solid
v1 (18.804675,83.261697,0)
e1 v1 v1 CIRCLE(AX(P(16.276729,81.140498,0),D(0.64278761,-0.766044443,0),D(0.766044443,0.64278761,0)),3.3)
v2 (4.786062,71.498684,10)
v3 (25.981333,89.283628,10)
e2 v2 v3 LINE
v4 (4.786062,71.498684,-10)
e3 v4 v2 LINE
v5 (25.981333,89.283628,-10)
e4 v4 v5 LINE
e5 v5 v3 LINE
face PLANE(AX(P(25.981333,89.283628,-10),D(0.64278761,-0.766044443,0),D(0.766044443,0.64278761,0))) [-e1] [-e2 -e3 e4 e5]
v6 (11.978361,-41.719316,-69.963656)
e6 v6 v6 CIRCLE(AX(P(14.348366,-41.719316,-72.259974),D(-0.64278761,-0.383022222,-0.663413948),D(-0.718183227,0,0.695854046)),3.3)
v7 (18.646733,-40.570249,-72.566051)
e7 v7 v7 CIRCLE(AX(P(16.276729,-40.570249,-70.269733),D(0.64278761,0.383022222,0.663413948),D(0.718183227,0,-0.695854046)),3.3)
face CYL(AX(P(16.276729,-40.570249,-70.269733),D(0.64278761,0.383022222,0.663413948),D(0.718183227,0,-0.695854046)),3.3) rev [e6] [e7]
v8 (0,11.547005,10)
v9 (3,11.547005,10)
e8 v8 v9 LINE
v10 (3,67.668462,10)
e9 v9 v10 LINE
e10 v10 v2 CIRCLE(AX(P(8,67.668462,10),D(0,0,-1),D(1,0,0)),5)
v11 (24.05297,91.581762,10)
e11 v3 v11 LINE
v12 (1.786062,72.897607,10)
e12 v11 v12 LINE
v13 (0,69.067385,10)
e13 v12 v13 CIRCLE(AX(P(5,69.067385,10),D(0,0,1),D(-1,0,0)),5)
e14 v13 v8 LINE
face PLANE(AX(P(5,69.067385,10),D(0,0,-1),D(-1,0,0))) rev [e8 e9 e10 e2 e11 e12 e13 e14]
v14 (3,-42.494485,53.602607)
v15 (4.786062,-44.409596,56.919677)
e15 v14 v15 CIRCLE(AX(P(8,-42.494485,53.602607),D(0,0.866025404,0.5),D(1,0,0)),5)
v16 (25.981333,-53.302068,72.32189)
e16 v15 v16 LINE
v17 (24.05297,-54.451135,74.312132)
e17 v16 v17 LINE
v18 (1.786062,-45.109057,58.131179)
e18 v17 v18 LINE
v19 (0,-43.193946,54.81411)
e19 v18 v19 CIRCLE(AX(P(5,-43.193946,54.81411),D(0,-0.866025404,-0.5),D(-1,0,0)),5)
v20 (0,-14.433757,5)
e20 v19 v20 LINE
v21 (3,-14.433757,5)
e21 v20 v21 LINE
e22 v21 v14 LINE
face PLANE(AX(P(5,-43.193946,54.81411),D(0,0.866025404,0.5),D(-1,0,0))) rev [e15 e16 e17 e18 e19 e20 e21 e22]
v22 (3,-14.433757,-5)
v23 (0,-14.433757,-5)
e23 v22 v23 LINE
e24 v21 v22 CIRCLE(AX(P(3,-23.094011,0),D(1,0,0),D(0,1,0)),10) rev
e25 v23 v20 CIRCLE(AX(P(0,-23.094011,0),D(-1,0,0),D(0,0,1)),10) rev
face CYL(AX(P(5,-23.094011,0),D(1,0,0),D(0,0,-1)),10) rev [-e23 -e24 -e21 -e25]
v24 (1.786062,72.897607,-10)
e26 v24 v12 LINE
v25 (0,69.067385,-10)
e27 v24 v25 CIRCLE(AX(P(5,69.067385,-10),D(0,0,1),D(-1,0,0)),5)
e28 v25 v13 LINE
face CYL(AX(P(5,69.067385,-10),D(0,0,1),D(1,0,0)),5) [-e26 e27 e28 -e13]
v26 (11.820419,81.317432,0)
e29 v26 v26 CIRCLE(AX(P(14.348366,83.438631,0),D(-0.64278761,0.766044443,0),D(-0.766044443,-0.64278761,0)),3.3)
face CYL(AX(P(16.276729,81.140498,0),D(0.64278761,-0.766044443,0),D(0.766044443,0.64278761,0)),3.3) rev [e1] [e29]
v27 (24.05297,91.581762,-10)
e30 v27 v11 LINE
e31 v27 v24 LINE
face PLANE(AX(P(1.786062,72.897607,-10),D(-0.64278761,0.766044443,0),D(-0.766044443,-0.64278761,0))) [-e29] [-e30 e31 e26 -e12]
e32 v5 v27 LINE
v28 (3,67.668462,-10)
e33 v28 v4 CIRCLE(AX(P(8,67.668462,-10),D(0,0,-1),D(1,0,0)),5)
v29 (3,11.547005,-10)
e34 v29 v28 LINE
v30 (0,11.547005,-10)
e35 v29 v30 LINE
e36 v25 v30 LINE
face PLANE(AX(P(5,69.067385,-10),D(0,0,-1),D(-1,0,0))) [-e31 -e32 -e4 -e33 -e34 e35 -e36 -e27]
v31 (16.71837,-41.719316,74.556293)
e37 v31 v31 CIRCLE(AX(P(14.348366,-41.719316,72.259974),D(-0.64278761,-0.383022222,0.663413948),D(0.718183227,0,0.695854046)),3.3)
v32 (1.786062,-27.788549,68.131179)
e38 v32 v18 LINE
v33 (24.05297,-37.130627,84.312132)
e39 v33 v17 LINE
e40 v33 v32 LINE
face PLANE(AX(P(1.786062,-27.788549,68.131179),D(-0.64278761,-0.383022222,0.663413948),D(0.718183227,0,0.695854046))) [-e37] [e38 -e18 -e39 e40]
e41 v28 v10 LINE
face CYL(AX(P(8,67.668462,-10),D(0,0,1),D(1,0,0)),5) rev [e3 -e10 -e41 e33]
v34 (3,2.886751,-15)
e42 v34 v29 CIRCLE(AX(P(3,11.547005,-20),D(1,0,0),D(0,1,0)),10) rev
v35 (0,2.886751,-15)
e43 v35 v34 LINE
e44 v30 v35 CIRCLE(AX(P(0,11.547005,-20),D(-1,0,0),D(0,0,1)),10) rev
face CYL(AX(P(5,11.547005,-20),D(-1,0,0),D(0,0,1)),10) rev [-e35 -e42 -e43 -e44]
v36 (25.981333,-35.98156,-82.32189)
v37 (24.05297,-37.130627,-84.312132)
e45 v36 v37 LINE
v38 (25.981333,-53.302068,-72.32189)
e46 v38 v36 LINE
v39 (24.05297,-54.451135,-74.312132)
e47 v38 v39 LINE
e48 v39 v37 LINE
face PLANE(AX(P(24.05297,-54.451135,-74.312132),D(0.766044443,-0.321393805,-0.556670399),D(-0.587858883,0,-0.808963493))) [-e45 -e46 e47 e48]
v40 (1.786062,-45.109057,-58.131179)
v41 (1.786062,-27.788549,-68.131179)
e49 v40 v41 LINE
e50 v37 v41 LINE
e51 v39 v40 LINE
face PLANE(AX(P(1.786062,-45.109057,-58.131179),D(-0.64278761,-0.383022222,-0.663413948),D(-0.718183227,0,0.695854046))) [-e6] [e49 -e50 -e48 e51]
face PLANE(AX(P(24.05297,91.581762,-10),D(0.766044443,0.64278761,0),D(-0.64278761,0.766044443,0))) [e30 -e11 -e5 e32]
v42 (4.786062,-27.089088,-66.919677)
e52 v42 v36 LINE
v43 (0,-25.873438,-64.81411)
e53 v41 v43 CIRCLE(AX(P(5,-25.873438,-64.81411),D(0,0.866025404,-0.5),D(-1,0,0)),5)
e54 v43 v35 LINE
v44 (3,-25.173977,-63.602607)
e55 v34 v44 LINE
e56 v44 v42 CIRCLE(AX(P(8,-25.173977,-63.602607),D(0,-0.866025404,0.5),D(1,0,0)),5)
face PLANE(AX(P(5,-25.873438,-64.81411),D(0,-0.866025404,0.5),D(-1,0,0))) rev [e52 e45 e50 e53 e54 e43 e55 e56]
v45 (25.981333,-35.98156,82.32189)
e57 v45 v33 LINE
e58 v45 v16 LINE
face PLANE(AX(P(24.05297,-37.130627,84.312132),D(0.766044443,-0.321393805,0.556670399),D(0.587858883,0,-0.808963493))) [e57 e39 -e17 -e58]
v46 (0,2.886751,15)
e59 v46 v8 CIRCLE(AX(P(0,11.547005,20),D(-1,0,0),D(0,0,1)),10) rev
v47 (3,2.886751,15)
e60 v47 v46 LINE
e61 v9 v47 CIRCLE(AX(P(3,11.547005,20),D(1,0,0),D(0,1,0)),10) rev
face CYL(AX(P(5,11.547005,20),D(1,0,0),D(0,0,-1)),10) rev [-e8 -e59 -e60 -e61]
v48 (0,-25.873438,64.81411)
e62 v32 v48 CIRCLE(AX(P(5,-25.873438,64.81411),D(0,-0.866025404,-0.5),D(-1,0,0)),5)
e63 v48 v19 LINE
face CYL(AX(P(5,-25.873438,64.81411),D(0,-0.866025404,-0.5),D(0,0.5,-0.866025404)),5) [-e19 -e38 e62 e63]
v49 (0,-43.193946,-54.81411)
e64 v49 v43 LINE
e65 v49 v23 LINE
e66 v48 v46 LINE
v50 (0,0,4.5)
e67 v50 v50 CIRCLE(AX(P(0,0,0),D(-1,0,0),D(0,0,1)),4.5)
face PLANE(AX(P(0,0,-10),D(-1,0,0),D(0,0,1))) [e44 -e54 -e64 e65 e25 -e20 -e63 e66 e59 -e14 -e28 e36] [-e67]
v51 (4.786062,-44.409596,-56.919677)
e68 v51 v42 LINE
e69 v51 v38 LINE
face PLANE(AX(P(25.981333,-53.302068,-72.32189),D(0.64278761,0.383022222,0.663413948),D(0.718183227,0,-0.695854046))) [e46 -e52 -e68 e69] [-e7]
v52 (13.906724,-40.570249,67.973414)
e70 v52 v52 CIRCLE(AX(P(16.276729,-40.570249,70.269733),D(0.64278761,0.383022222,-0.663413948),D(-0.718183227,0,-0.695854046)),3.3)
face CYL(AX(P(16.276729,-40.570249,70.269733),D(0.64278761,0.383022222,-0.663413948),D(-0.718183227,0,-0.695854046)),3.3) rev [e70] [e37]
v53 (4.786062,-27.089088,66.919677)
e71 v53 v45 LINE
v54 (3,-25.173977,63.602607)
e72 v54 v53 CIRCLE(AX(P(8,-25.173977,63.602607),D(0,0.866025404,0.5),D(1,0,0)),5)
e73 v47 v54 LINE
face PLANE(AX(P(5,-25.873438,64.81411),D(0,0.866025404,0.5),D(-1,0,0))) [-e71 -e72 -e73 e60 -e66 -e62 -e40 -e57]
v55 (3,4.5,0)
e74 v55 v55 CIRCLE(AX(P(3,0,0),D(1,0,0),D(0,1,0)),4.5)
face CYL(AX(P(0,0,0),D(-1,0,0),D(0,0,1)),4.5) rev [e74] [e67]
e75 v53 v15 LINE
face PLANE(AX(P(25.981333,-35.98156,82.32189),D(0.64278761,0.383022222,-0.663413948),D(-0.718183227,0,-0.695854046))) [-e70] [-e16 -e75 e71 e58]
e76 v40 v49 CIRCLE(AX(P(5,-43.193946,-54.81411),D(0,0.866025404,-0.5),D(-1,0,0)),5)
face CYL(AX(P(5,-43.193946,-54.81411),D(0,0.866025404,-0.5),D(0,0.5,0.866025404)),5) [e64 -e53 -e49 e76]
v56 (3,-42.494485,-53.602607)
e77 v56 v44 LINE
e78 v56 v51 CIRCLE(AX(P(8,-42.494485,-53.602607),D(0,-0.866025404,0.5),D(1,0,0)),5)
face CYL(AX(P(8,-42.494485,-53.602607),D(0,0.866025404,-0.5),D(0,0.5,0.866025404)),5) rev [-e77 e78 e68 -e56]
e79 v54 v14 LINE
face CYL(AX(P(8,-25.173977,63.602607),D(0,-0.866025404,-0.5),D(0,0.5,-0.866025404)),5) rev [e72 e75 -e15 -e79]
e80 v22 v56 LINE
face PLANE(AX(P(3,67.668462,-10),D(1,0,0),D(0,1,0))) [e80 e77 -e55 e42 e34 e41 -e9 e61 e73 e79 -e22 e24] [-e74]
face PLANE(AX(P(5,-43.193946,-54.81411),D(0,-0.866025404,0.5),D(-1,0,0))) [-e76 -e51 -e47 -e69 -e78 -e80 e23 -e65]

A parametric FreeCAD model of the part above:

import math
import FreeCAD as App
import Part
import Sketcher
from FreeCAD import Vector
Q = App.Units.Quantity


def edges_at(feature, points):
    """Names of the edges that pass closest to the given points."""
    edges = feature.Shape.Edges
    near = lambda p: min(range(len(edges)), key=lambda i: edges[i].distToShape(Part.Vertex(*p))[0])
    return sorted({f"Edge{near(p) + 1}" for p in points})

doc = App.newDocument("Part")
body = doc.addObject("PartDesign::Body", "Body")

# Sketch on XY plane
sketch1 = doc.addObject("Sketcher::SketchObject", "Sketch")
body.addObject(sketch1)
sketch1.AttachmentSupport = (doc.XY_Plane, [""])
sketch1.MapMode = "FlatFace"
sketch1.addGeometry([
    Part.LineSegment(Vector(0, 69.067385, 0), Vector(0, 0, 0)),  # 0
    Part.LineSegment(Vector(0, 0, 0), Vector(3, 0, 0)),  # 1
    Part.LineSegment(Vector(3, 0, 0), Vector(3, 67.668462, 0)),  # 2
    Part.ArcOfCircle(Part.Circle(Vector(8, 67.668462, 0), Vector(0, 0, 1), 5), math.radians(130), math.radians(180)),  # 3
    Part.LineSegment(Vector(4.786062, 71.498684, 0), Vector(25.981333, 89.283628, 0)),  # 4
    Part.LineSegment(Vector(25.981333, 89.283628, 0), Vector(24.05297, 91.581762, 0)),  # 5
    Part.LineSegment(Vector(24.05297, 91.581762, 0), Vector(1.786062, 72.897607, 0)),  # 6
    Part.ArcOfCircle(Part.Circle(Vector(5, 69.067385, 0), Vector(0, 0, 1), 5), math.radians(130), math.radians(180)),  # 7
], False)
sketch1.addConstraint([
    Sketcher.Constraint("Coincident", 0, 2, 1, 1),
    Sketcher.Constraint("Coincident", 1, 2, 2, 1),
    Sketcher.Constraint("Tangent", 2, 2, 3, 2),
    Sketcher.Constraint("Tangent", 3, 1, 4, 1),
    Sketcher.Constraint("Coincident", 4, 2, 5, 1),
    Sketcher.Constraint("Coincident", 5, 2, 6, 1),
    Sketcher.Constraint("Tangent", 6, 2, 7, 1),
    Sketcher.Constraint("Tangent", 7, 2, 0, 1),
    Sketcher.Constraint("Vertical", 0),
    Sketcher.Constraint("Horizontal", 1),
    Sketcher.Constraint("Vertical", 2),
    Sketcher.Constraint("Coincident", 0, 2, -1, 1),
    Sketcher.Constraint("Equal", 3, 7),
    Sketcher.Constraint("Perpendicular", 4, 5),
    Sketcher.Constraint("Perpendicular", 5, 6),
    Sketcher.Constraint("Radius", 3, Q("5 mm")),
    Sketcher.Constraint("DistanceX", 1, 1, 1, 2, Q("3 mm")),
    Sketcher.Constraint("Angle", 4, Q("40 deg")),
    Sketcher.Constraint("Distance", 5, Q("3 mm")),
    Sketcher.Constraint("DistanceY", 2, 1, 2, 2, Q("67.668462 mm")),
    Sketcher.Constraint("DistanceY", 3, 3, 5, 2, Q("23.9133 mm")),
])
pad1 = doc.addObject("PartDesign::Pad", "Pad")
body.addObject(pad1)
pad1.Profile = sketch1
pad1.Length = 20
pad1.Midplane = True
doc.recompute()

polarpattern = doc.addObject("PartDesign::PolarPattern", "PolarPattern")
body.addObject(polarpattern)
polarpattern.Originals = [pad1]
polarpattern.Axis = (doc.X_Axis, [""])
polarpattern.Angle = 360
polarpattern.Occurrences = 3
body.Tip = polarpattern
doc.recompute()

fillet = doc.addObject("PartDesign::Fillet", "Fillet")
body.addObject(fillet)
fillet.Base = (polarpattern, edges_at(polarpattern, [(1.5, 5.774, 10), (1.5, 5.774, -10), (1.5, -11.547, 0)]))
fillet.Radius = 10

# Sketch on YZ plane
sketch2 = doc.addObject("Sketcher::SketchObject", "Sketch001")
body.addObject(sketch2)
sketch2.AttachmentSupport = (doc.YZ_Plane, [""])
sketch2.MapMode = "FlatFace"
sketch2.addGeometry(Part.Circle(Vector(0, 0, 0), Vector(0, 0, 1), 4.5), False)
sketch2.addConstraint([
    Sketcher.Constraint("Coincident", 0, 3, -1, 1),
    Sketcher.Constraint("Diameter", 0, Q("9 mm")),
])
doc.recompute()
hole = doc.addObject("PartDesign::Hole", "Hole")
body.addObject(hole)
hole.Profile = sketch2
hole.ThreadType = "None"
hole.Diameter = 9
hole.DepthType = "ThroughAll"
hole.Reversed = True

# Sketch on an angled plane
sketch3 = doc.addObject("Sketcher::SketchObject", "Sketch002")
body.addObject(sketch3)
sketch3.Placement = App.Placement(Vector(-33.228744, 39.600475, 0), App.Rotation(Vector(-0.766044443, -0.64278761, 0), Vector(0, 0, -1), Vector(0.64278761, -0.766044443, 0), "ZXY"))
sketch3.addGeometry(Part.Circle(Vector(-64.624804, 0, 0), Vector(0, 0, 1), 3.3), False)
sketch3.addConstraint([
    Sketcher.Constraint("PointOnObject", 0, 3, -1),
    Sketcher.Constraint("Diameter", 0, Q("6.6 mm")),
    Sketcher.Constraint("DistanceX", 0, 3, -1, 1, Q("64.624804 mm")),
])
doc.recompute()
hole2 = doc.addObject("PartDesign::Hole", "Hole001")
body.addObject(hole2)
hole2.Profile = sketch3
hole2.ThreadType = "None"
hole2.Diameter = 6.6
hole2.DepthType = "ThroughAll"
doc.recompute()

polarpattern2 = doc.addObject("PartDesign::PolarPattern", "PolarPattern001")
body.addObject(polarpattern2)
polarpattern2.Originals = [hole2]
polarpattern2.Axis = (doc.X_Axis, [""])
polarpattern2.Angle = 360
polarpattern2.Occurrences = 3
body.Tip = polarpattern2

doc.recompute()
